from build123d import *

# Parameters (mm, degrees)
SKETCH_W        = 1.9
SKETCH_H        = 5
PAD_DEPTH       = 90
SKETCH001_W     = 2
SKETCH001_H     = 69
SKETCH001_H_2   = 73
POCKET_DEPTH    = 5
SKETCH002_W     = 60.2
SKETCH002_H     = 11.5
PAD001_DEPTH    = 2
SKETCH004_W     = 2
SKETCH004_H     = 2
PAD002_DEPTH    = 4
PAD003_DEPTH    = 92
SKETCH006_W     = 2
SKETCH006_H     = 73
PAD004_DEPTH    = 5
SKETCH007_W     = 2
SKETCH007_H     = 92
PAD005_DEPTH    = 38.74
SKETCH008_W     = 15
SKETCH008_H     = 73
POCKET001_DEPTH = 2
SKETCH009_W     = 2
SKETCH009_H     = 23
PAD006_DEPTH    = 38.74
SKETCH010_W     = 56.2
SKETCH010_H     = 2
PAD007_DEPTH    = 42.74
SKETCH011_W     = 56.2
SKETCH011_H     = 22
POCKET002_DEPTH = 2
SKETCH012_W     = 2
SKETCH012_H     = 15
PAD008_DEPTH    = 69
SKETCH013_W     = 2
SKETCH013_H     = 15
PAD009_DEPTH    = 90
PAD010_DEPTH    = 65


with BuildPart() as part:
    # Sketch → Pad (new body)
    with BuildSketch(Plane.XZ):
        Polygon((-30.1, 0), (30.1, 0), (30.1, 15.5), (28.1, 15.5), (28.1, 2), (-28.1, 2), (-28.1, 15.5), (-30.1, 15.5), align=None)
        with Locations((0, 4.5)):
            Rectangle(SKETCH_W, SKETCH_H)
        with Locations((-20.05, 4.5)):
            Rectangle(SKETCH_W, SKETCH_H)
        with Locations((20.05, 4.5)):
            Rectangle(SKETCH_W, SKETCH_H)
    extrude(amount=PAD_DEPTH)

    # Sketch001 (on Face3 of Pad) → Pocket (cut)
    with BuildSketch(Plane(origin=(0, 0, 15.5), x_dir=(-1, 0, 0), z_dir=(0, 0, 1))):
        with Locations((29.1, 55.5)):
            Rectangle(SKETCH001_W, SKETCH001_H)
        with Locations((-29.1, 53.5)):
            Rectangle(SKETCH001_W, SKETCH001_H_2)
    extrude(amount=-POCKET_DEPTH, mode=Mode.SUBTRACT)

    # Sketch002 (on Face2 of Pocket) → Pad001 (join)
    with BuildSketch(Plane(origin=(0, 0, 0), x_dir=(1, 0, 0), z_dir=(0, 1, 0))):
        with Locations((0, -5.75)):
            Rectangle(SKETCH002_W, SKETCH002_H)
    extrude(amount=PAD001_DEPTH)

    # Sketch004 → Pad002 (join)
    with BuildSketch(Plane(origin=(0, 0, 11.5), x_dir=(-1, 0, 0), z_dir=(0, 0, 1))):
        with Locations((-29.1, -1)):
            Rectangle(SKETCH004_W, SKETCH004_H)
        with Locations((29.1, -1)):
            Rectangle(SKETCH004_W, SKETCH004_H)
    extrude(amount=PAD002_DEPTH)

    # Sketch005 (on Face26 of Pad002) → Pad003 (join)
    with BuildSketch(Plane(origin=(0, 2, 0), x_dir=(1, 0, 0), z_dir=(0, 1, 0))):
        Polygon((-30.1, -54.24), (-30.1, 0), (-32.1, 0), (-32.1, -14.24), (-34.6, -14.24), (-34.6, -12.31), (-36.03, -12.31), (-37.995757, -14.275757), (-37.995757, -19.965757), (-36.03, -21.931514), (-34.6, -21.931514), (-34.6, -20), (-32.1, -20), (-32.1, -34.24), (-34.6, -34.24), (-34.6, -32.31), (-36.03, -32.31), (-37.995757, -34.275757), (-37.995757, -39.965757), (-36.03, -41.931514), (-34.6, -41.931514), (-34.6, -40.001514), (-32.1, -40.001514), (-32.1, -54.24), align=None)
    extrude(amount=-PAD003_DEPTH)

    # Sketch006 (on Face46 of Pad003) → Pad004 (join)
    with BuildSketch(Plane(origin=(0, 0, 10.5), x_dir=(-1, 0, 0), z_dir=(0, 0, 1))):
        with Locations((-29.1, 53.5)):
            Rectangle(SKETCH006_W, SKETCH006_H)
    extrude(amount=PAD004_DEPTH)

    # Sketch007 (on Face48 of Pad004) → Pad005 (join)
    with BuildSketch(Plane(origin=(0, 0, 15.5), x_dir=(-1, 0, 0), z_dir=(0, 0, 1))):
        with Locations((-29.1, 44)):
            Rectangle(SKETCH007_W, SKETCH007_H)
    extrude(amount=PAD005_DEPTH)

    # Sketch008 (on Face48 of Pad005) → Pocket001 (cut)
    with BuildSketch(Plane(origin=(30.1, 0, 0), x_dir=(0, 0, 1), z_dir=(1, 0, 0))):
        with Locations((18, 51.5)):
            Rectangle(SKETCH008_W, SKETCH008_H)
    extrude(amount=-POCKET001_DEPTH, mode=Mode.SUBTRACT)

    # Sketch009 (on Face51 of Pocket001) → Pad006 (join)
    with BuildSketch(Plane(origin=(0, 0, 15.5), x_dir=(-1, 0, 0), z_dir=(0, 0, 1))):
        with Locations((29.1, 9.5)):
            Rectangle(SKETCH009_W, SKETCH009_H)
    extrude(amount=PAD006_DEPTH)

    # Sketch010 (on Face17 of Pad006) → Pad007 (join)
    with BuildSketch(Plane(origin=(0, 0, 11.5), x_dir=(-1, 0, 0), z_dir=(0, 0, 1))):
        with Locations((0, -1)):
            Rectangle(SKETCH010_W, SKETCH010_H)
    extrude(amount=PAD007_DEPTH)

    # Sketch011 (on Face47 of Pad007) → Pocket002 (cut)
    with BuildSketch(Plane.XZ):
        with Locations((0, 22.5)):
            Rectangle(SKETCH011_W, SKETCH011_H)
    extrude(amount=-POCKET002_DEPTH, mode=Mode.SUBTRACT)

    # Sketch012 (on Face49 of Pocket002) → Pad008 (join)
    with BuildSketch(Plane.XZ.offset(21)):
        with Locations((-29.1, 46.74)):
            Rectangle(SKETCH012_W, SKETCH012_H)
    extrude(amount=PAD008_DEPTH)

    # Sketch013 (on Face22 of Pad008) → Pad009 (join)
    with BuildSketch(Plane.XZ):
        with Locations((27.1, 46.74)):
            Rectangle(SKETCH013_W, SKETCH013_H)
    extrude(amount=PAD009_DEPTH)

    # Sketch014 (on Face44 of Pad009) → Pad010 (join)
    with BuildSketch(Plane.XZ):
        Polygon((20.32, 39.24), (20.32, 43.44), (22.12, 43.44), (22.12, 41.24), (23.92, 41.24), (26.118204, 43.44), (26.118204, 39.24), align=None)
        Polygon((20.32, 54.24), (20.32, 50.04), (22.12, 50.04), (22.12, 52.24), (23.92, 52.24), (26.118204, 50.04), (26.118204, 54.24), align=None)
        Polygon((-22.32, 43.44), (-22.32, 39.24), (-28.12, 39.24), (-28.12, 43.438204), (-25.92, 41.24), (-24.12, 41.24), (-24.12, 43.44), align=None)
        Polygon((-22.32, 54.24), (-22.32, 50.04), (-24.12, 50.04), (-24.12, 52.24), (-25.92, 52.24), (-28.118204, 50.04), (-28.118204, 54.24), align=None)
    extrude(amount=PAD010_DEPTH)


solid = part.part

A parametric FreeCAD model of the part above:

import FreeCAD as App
import Part
import Sketcher
from FreeCAD import Vector

doc = App.newDocument("Part")
params = doc.addObject("Spreadsheet::Sheet", "Params")
for row, (alias, value) in enumerate([
    ("sketch1_width", "2 mm"),
    ("sketch1_height", "5 mm"),
    ("sketch1_width2", "60.2 mm"),
    ("sketch1_width3", "7.1 mm"),
    ("sketch1_width4", "1.9 mm"),
    ("pad1_length", "90 mm"),
    ("sketch2_width", "2 mm"),
    ("sketch2_height", "69 mm"),
    ("sketch2_height2", "73 mm"),
    ("pocket1_length", "5 mm"),
    ("sketch3_width", "60.2 mm"),
    ("sketch3_height", "11.5 mm"),
    ("pad2_length", "2 mm"),
    ("sketch4_width", "2 mm"),
    ("pad3_length", "4 mm"),
    ("sketch5_width", "2 mm"),
    ("sketch5_width2", "2.5 mm"),
    ("sketch5_width3", "1.43 mm"),
    ("sketch5_height", "54.24 mm"),
    ("sketch5_height2", "14.24 mm"),
    ("pad4_length", "92 mm"),
    ("sketch6_width", "2 mm"),
    ("sketch6_height", "73 mm"),
    ("pad5_length", "5 mm"),
    ("sketch7_width", "2 mm"),
    ("sketch7_height", "92 mm"),
    ("pad6_length", "38.74 mm"),
    ("sketch8_width", "73 mm"),
    ("sketch8_height", "15 mm"),
    ("pocket2_length", "2 mm"),
    ("sketch9_width", "2 mm"),
    ("sketch9_height", "23 mm"),
    ("pad7_length", "38.74 mm"),
    ("sketch10_height", "2 mm"),
    ("sketch10_width", "56.2 mm"),
    ("pad8_length", "42.74 mm"),
    ("sketch11_height", "22 mm"),
    ("sketch11_width", "56.2 mm"),
    ("pocket3_length", "2 mm"),
    ("sketch12_width", "2 mm"),
    ("sketch12_height", "15 mm"),
    ("pad9_length", "69 mm"),
    ("sketch13_width", "2 mm"),
    ("sketch13_height", "15 mm"),
    ("pad10_length", "90 mm"),
    ("sketch14_width", "1.8 mm"),
    ("sketch14_width2", "5.8 mm"),
    ("sketch14_height", "4.2 mm"),
    ("sketch14_length", "3.11 mm"),
    ("pad11_length", "65 mm"),
], start=1):
    params.set(f"A{row}", alias)
    params.set(f"B{row}", "=" + value)
    params.setAlias(f"B{row}", alias)

body = doc.addObject("PartDesign::Body", "Body")

# Sketch on XZ plane
sketch1 = body.newObject("Sketcher::SketchObject", "Sketch")
sketch1.AttachmentSupport = (doc.getObject("XZ_Plane"), [""])
sketch1.MapMode = "FlatFace"
sketch1.addGeometry([
    Part.LineSegment(Vector(-30.1, 0, 0), Vector(30.1, 0, 0)),  # 0
    Part.LineSegment(Vector(30.1, 0, 0), Vector(30.1, 15.5, 0)),  # 1
    Part.LineSegment(Vector(30.1, 15.5, 0), Vector(28.1, 15.5, 0)),  # 2
    Part.LineSegment(Vector(28.1, 15.5, 0), Vector(28.1, 2, 0)),  # 3
    Part.LineSegment(Vector(28.1, 2, 0), Vector(21, 2, 0)),  # 4
    Part.LineSegment(Vector(21, 2, 0), Vector(21, 7, 0)),  # 5
    Part.LineSegment(Vector(21, 7, 0), Vector(19.1, 7, 0)),  # 6
    Part.LineSegment(Vector(19.1, 7, 0), Vector(19.1, 2, 0)),  # 7
    Part.LineSegment(Vector(19.1, 2, 0), Vector(0.95, 2, 0)),  # 8
    Part.LineSegment(Vector(0.95, 2, 0), Vector(0.95, 7, 0)),  # 9
    Part.LineSegment(Vector(0.95, 7, 0), Vector(-0.95, 7, 0)),  # 10
    Part.LineSegment(Vector(-0.95, 7, 0), Vector(-0.95, 2, 0)),  # 11
    Part.LineSegment(Vector(-0.95, 2, 0), Vector(-19.1, 2, 0)),  # 12
    Part.LineSegment(Vector(-19.1, 2, 0), Vector(-19.1, 7, 0)),  # 13
    Part.LineSegment(Vector(-19.1, 7, 0), Vector(-21, 7, 0)),  # 14
    Part.LineSegment(Vector(-21, 7, 0), Vector(-21, 2, 0)),  # 15
    Part.LineSegment(Vector(-21, 2, 0), Vector(-28.1, 2, 0)),  # 16
    Part.LineSegment(Vector(-28.1, 2, 0), Vector(-28.1, 15.5, 0)),  # 17
    Part.LineSegment(Vector(-28.1, 15.5, 0), Vector(-30.1, 15.5, 0)),  # 18
    Part.LineSegment(Vector(-30.1, 15.5, 0), Vector(-30.1, 0, 0)),  # 19
], False)
sketch1.addConstraint([
    Sketcher.Constraint("Coincident", 0, 2, 1, 1),
    Sketcher.Constraint("Coincident", 1, 2, 2, 1),
    Sketcher.Constraint("Coincident", 2, 2, 3, 1),
    Sketcher.Constraint("Coincident", 3, 2, 4, 1),
    Sketcher.Constraint("Coincident", 4, 2, 5, 1),
    Sketcher.Constraint("Coincident", 5, 2, 6, 1),
    Sketcher.Constraint("Coincident", 6, 2, 7, 1),
    Sketcher.Constraint("Coincident", 7, 2, 8, 1),
    Sketcher.Constraint("Coincident", 8, 2, 9, 1),
    Sketcher.Constraint("Coincident", 9, 2, 10, 1),
    Sketcher.Constraint("Coincident", 10, 2, 11, 1),
    Sketcher.Constraint("Coincident", 11, 2, 12, 1),
    Sketcher.Constraint("Coincident", 12, 2, 13, 1),
    Sketcher.Constraint("Coincident", 13, 2, 14, 1),
    Sketcher.Constraint("Coincident", 14, 2, 15, 1),
    Sketcher.Constraint("Coincident", 15, 2, 16, 1),
    Sketcher.Constraint("Coincident", 16, 2, 17, 1),
    Sketcher.Constraint("Coincident", 17, 2, 18, 1),
    Sketcher.Constraint("Coincident", 18, 2, 19, 1),
    Sketcher.Constraint("Coincident", 19, 2, 0, 1),
    Sketcher.Constraint("Horizontal", 0),
    Sketcher.Constraint("Vertical", 1),
    Sketcher.Constraint("Horizontal", 2),
    Sketcher.Constraint("Vertical", 3),
    Sketcher.Constraint("Horizontal", 4),
    Sketcher.Constraint("Vertical", 5),
    Sketcher.Constraint("Horizontal", 6),
    Sketcher.Constraint("Vertical", 7),
    Sketcher.Constraint("Horizontal", 8),
    Sketcher.Constraint("Vertical", 9),
    Sketcher.Constraint("Horizontal", 10),
    Sketcher.Constraint("Vertical", 11),
    Sketcher.Constraint("Horizontal", 12),
    Sketcher.Constraint("Vertical", 13),
    Sketcher.Constraint("Horizontal", 14),
    Sketcher.Constraint("Vertical", 15),
    Sketcher.Constraint("Horizontal", 16),
    Sketcher.Constraint("Vertical", 17),
    Sketcher.Constraint("Horizontal", 18),
    Sketcher.Constraint("Vertical", 19),
    Sketcher.Constraint("Symmetric", 0, 2, 19, 2, -1, 1),
    Sketcher.Constraint("Symmetric", 8, 2, 11, 2, -2),
    Sketcher.Constraint("Symmetric", 6, 2, 13, 2, -2),
    Sketcher.Constraint("Symmetric", 4, 2, 15, 2, -2),
    Sketcher.Constraint("Symmetric", 2, 2, 17, 2, -2),
    Sketcher.Constraint("Horizontal", 4, 2, 7, 2),
    Sketcher.Constraint("Horizontal", 6, 2, 9, 2),
    Sketcher.Constraint("Equal", 6, 10),
    Sketcher.Constraint("DistanceX", 2, 2, 2, 1, 2.0),
    Sketcher.Constraint("DistanceY", 5, 1, 5, 2, 5.0),
    Sketcher.Constraint("DistanceX", 0, 1, 0, 2, 60.2),
    Sketcher.Constraint("DistanceX", 4, 2, 4, 1, 7.1),
    Sketcher.Constraint("DistanceX", 6, 2, 6, 1, 1.9),
    Sketcher.Constraint("DistanceY", 1, 1, 1, 2, 15.5),
    Sketcher.Constraint("DistanceY", 3, 2, 3, 1, 13.5),
])
sketch1.setExpression("Constraints[48]", "Params.sketch1_width")
sketch1.setExpression("Constraints[49]", "Params.sketch1_height")
sketch1.setExpression("Constraints[50]", "Params.sketch1_width2")
sketch1.setExpression("Constraints[51]", "Params.sketch1_width3")
sketch1.setExpression("Constraints[52]", "Params.sketch1_width4")
pad1 = body.newObject("PartDesign::Pad", "Pad")
pad1.Profile = sketch1
pad1.setExpression("Length", "Params.pad1_length")

# Sketch on XY plane
sketch2 = body.newObject("Sketcher::SketchObject", "Sketch001")
sketch2.AttachmentSupport = (doc.getObject("XY_Plane"), [""])
sketch2.MapMode = "FlatFace"
sketch2.AttachmentOffset = App.Placement(Vector(0, 0, 15.5), App.Rotation())
sketch2.addGeometry([
    Part.LineSegment(Vector(-28.1, -90, 0), Vector(-28.1, -21, 0)),  # 0
    Part.LineSegment(Vector(-28.1, -21, 0), Vector(-30.1, -21, 0)),  # 1
    Part.LineSegment(Vector(-30.1, -21, 0), Vector(-30.1, -90, 0)),  # 2
    Part.LineSegment(Vector(-30.1, -90, 0), Vector(-28.1, -90, 0)),  # 3
    Part.LineSegment(Vector(30.1, -90, 0), Vector(30.1, -17, 0)),  # 4
    Part.LineSegment(Vector(30.1, -17, 0), Vector(28.1, -17, 0)),  # 5
    Part.LineSegment(Vector(28.1, -17, 0), Vector(28.1, -90, 0)),  # 6
    Part.LineSegment(Vector(28.1, -90, 0), Vector(30.1, -90, 0)),  # 7
], False)
sketch2.addConstraint([
    Sketcher.Constraint("Coincident", 0, 2, 1, 1),
    Sketcher.Constraint("Coincident", 1, 2, 2, 1),
    Sketcher.Constraint("Coincident", 2, 2, 3, 1),
    Sketcher.Constraint("Coincident", 3, 2, 0, 1),
    Sketcher.Constraint("Coincident", 4, 2, 5, 1),
    Sketcher.Constraint("Coincident", 5, 2, 6, 1),
    Sketcher.Constraint("Coincident", 6, 2, 7, 1),
    Sketcher.Constraint("Coincident", 7, 2, 4, 1),
    Sketcher.Constraint("Vertical", 0),
    Sketcher.Constraint("Horizontal", 1),
    Sketcher.Constraint("Vertical", 2),
    Sketcher.Constraint("Horizontal", 3),
    Sketcher.Constraint("Vertical", 4),
    Sketcher.Constraint("Horizontal", 5),
    Sketcher.Constraint("Vertical", 6),
    Sketcher.Constraint("Horizontal", 7),
    Sketcher.Constraint("Symmetric", 3, 2, 6, 2, -2),
    Sketcher.Constraint("Equal", 3, 5),
    Sketcher.Constraint("DistanceX", 1, 2, 1, 1, 2.0),
    Sketcher.Constraint("DistanceY", 0, 1, 0, 2, 69.0),
    Sketcher.Constraint("DistanceY", 4, 1, 4, 2, 73.0),
    Sketcher.Constraint("DistanceY", 0, 2, -1, 1, 21.0),
    Sketcher.Constraint("DistanceX", 0, 2, -1, 1, 28.1),
])
sketch2.setExpression("Constraints[18]", "Params.sketch2_width")
sketch2.setExpression("Constraints[19]", "Params.sketch2_height")
sketch2.setExpression("Constraints[20]", "Params.sketch2_height2")
pocket1 = body.newObject("PartDesign::Pocket", "Pocket")
pocket1.Profile = sketch2
pocket1.setExpression("Length", "Params.pocket1_length")

# Sketch on XZ plane
sketch3 = body.newObject("Sketcher::SketchObject", "Sketch002")
sketch3.AttachmentSupport = (doc.getObject("XZ_Plane"), [""])
sketch3.MapMode = "FlatFace"
sketch3.addGeometry([
    Part.LineSegment(Vector(-30.1, 0, 0), Vector(-30.1, 11.5, 0)),
    Part.LineSegment(Vector(-30.1, 11.5, 0), Vector(30.1, 11.5, 0)),
    Part.LineSegment(Vector(30.1, 11.5, 0), Vector(30.1, 0, 0)),
    Part.LineSegment(Vector(30.1, 0, 0), Vector(-30.1, 0, 0)),
], False)
sketch3.addConstraint([
    Sketcher.Constraint("Coincident", 0, 2, 1, 1),
    Sketcher.Constraint("Coincident", 1, 2, 2, 1),
    Sketcher.Constraint("Coincident", 2, 2, 3, 1),
    Sketcher.Constraint("Coincident", 3, 2, 0, 1),
    Sketcher.Constraint("Vertical", 0),
    Sketcher.Constraint("Horizontal", 1),
    Sketcher.Constraint("Vertical", 2),
    Sketcher.Constraint("Horizontal", 3),
    Sketcher.Constraint("Symmetric", 2, 2, 3, 2, -1, 1),
    Sketcher.Constraint("DistanceX", 1, 1, 1, 2, 60.2),
    Sketcher.Constraint("DistanceY", 0, 1, 0, 2, 11.5),
])
sketch3.setExpression("Constraints[9]", "Params.sketch3_width")
sketch3.setExpression("Constraints[10]", "Params.sketch3_height")
pad2 = body.newObject("PartDesign::Pad", "Pad001")
pad2.Profile = sketch3
pad2.setExpression("Length", "Params.pad2_length")
pad2.Reversed = True

# Sketch on XY plane
sketch4 = body.newObject("Sketcher::SketchObject", "Sketch003")
sketch4.AttachmentSupport = (doc.getObject("XY_Plane"), [""])
sketch4.MapMode = "FlatFace"
sketch4.AttachmentOffset = App.Placement(Vector(0, 0, 11.5), App.Rotation())
sketch4.addGeometry([
    Part.LineSegment(Vector(30.1, 0, 0), Vector(30.1, 2, 0)),  # 0
    Part.LineSegment(Vector(30.1, 2, 0), Vector(28.1, 2, 0)),  # 1
    Part.LineSegment(Vector(28.1, 2, 0), Vector(28.1, 0, 0)),  # 2
    Part.LineSegment(Vector(28.1, 0, 0), Vector(30.1, 0, 0)),  # 3
    Part.LineSegment(Vector(-28.1, 0, 0), Vector(-28.1, 2, 0)),  # 4
    Part.LineSegment(Vector(-28.1, 2, 0), Vector(-30.1, 2, 0)),  # 5
    Part.LineSegment(Vector(-30.1, 2, 0), Vector(-30.1, 0, 0)),  # 6
    Part.LineSegment(Vector(-30.1, 0, 0), Vector(-28.1, 0, 0)),  # 7
], False)
sketch4.addConstraint([
    Sketcher.Constraint("Coincident", 0, 2, 1, 1),
    Sketcher.Constraint("Coincident", 1, 2, 2, 1),
    Sketcher.Constraint("Coincident", 2, 2, 3, 1),
    Sketcher.Constraint("Coincident", 3, 2, 0, 1),
    Sketcher.Constraint("Coincident", 4, 2, 5, 1),
    Sketcher.Constraint("Coincident", 5, 2, 6, 1),
    Sketcher.Constraint("Coincident", 6, 2, 7, 1),
    Sketcher.Constraint("Coincident", 7, 2, 4, 1),
    Sketcher.Constraint("Vertical", 0),
    Sketcher.Constraint("Horizontal", 1),
    Sketcher.Constraint("Vertical", 2),
    Sketcher.Constraint("Horizontal", 3),
    Sketcher.Constraint("Vertical", 4),
    Sketcher.Constraint("Horizontal", 5),
    Sketcher.Constraint("Vertical", 6),
    Sketcher.Constraint("Horizontal", 7),
    Sketcher.Constraint("Symmetric", 3, 2, 6, 2, -1, 1),
    Sketcher.Constraint("Symmetric", 1, 2, 4, 2, -2),
    Sketcher.Constraint("PointOnObject", 2, 2, -1),
    Sketcher.Constraint("Equal", 7, 0),
    Sketcher.Constraint("DistanceX", 1, 2, 1, 1, 2.0),
    Sketcher.Constraint("DistanceX", -1, 1, 0, 2, 30.1),
])
sketch4.setExpression("Constraints[20]", "Params.sketch4_width")
pad3 = body.newObject("PartDesign::Pad", "Pad002")
pad3.Profile = sketch4
pad3.setExpression("Length", "Params.pad3_length")

# Sketch on XZ plane
sketch5 = body.newObject("Sketcher::SketchObject", "Sketch004")
sketch5.AttachmentSupport = (doc.getObject("XZ_Plane"), [""])
sketch5.MapMode = "FlatFace"
sketch5.AttachmentOffset = App.Placement(Vector(0, 0, -2), App.Rotation())
sketch5.addGeometry([
    Part.LineSegment(Vector(-30.1, 54.24, 0), Vector(-30.1, 0, 0)),  # 0
    Part.LineSegment(Vector(-30.1, 0, 0), Vector(-32.1, 0, 0)),  # 1
    Part.LineSegment(Vector(-32.1, 0, 0), Vector(-32.1, 14.24, 0)),  # 2
    Part.LineSegment(Vector(-32.1, 14.24, 0), Vector(-34.6, 14.24, 0)),  # 3
    Part.LineSegment(Vector(-34.6, 14.24, 0), Vector(-34.6, 12.31, 0)),  # 4
    Part.LineSegment(Vector(-34.6, 12.31, 0), Vector(-36.03, 12.31, 0)),  # 5
    Part.LineSegment(Vector(-36.03, 12.31, 0), Vector(-37.995757, 14.275757, 0)),  # 6
    Part.LineSegment(Vector(-37.995757, 14.275757, 0), Vector(-37.995757, 19.965757, 0)),  # 7
    Part.LineSegment(Vector(-37.995757, 19.965757, 0), Vector(-36.03, 21.931514, 0)),  # 8
    Part.LineSegment(Vector(-36.03, 21.931514, 0), Vector(-34.6, 21.931514, 0)),  # 9
    Part.LineSegment(Vector(-34.6, 21.931514, 0), Vector(-34.6, 20, 0)),  # 10
    Part.LineSegment(Vector(-34.6, 20, 0), Vector(-32.1, 20, 0)),  # 11
    Part.LineSegment(Vector(-32.1, 20, 0), Vector(-32.1, 34.24, 0)),  # 12
    Part.LineSegment(Vector(-32.1, 34.24, 0), Vector(-34.6, 34.24, 0)),  # 13
    Part.LineSegment(Vector(-34.6, 34.24, 0), Vector(-34.6, 32.31, 0)),  # 14
    Part.LineSegment(Vector(-34.6, 32.31, 0), Vector(-36.03, 32.31, 0)),  # 15
    Part.LineSegment(Vector(-36.03, 32.31, 0), Vector(-37.995757, 34.275757, 0)),  # 16
    Part.LineSegment(Vector(-37.995757, 34.275757, 0), Vector(-37.995757, 39.965757, 0)),  # 17
    Part.LineSegment(Vector(-37.995757, 39.965757, 0), Vector(-36.03, 41.931514, 0)),  # 18
    Part.LineSegment(Vector(-36.03, 41.931514, 0), Vector(-34.6, 41.931514, 0)),  # 19
    Part.LineSegment(Vector(-34.6, 41.931514, 0), Vector(-34.6, 40.001514, 0)),  # 20
    Part.LineSegment(Vector(-34.6, 40.001514, 0), Vector(-32.1, 40.001514, 0)),  # 21
    Part.LineSegment(Vector(-32.1, 40.001514, 0), Vector(-32.1, 54.24, 0)),  # 22
    Part.LineSegment(Vector(-32.1, 54.24, 0), Vector(-30.1, 54.24, 0)),  # 23
], False)
sketch5.addConstraint([
    Sketcher.Constraint("Coincident", 0, 2, 1, 1),
    Sketcher.Constraint("Coincident", 1, 2, 2, 1),
    Sketcher.Constraint("Coincident", 2, 2, 3, 1),
    Sketcher.Constraint("Coincident", 3, 2, 4, 1),
    Sketcher.Constraint("Coincident", 4, 2, 5, 1),
    Sketcher.Constraint("Coincident", 5, 2, 6, 1),
    Sketcher.Constraint("Coincident", 6, 2, 7, 1),
    Sketcher.Constraint("Coincident", 7, 2, 8, 1),
    Sketcher.Constraint("Coincident", 8, 2, 9, 1),
    Sketcher.Constraint("Coincident", 9, 2, 10, 1),
    Sketcher.Constraint("Coincident", 10, 2, 11, 1),
    Sketcher.Constraint("Coincident", 11, 2, 12, 1),
    Sketcher.Constraint("Coincident", 12, 2, 13, 1),
    Sketcher.Constraint("Coincident", 13, 2, 14, 1),
    Sketcher.Constraint("Coincident", 14, 2, 15, 1),
    Sketcher.Constraint("Coincident", 15, 2, 16, 1),
    Sketcher.Constraint("Coincident", 16, 2, 17, 1),
    Sketcher.Constraint("Coincident", 17, 2, 18, 1),
    Sketcher.Constraint("Coincident", 18, 2, 19, 1),
    Sketcher.Constraint("Coincident", 19, 2, 20, 1),
    Sketcher.Constraint("Coincident", 20, 2, 21, 1),
    Sketcher.Constraint("Coincident", 21, 2, 22, 1),
    Sketcher.Constraint("Coincident", 22, 2, 23, 1),
    Sketcher.Constraint("Coincident", 23, 2, 0, 1),
    Sketcher.Constraint("Vertical", 0),
    Sketcher.Constraint("Horizontal", 1),
    Sketcher.Constraint("Vertical", 2),
    Sketcher.Constraint("Horizontal", 3),
    Sketcher.Constraint("Vertical", 4),
    Sketcher.Constraint("Horizontal", 5),
    Sketcher.Constraint("Vertical", 7),
    Sketcher.Constraint("Horizontal", 9),
    Sketcher.Constraint("Vertical", 10),
    Sketcher.Constraint("Horizontal", 11),
    Sketcher.Constraint("Vertical", 12),
    Sketcher.Constraint("Horizontal", 13),
    Sketcher.Constraint("Vertical", 14),
    Sketcher.Constraint("Horizontal", 15),
    Sketcher.Constraint("Vertical", 17),
    Sketcher.Constraint("Horizontal", 19),
    Sketcher.Constraint("Vertical", 20),
    Sketcher.Constraint("Horizontal", 21),
    Sketcher.Constraint("Vertical", 22),
    Sketcher.Constraint("Horizontal", 23),
    Sketcher.Constraint("PointOnObject", 0, 2, -1),
    Sketcher.Constraint("Perpendicular", 6, 8),
    Sketcher.Constraint("Perpendicular", 8, 16),
    Sketcher.Constraint("Perpendicular", 16, 18),
    Sketcher.Constraint("Vertical", 5, 2, 8, 2),
    Sketcher.Constraint("Vertical", 4, 2, 9, 2),
    Sketcher.Constraint("Vertical", 2, 2, 11, 2),
    Sketcher.Constraint("Vertical", 10, 2, 13, 2),
    Sketcher.Constraint("Vertical", 8, 2, 15, 2),
    Sketcher.Constraint("Vertical", 7, 2, 16, 2),
    Sketcher.Constraint("Vertical", 15, 2, 18, 2),
    Sketcher.Constraint("Vertical", 14, 2, 19, 2),
    Sketcher.Constraint("Vertical", 12, 2, 21, 2),
    Sketcher.Constraint("Equal", 2, 12),
    Sketcher.Constraint("Equal", 4, 14),
    Sketcher.Constraint("Equal", 7, 17),
    Sketcher.Constraint("Equal", 14, 20),
    Sketcher.Constraint("Equal", 6, 8),
    Sketcher.Constraint("DistanceX", 1, 2, 1, 1, 2.0),
    Sketcher.Constraint("DistanceX", 3, 2, 3, 1, 2.5),
    Sketcher.Constraint("DistanceY", -1, 1, 10, 2, 20.0),
    Sketcher.Constraint("DistanceX", 5, 2, 5, 1, 1.43),
    Sketcher.Constraint("DistanceY", 0, 2, 0, 1, 54.24),
    Sketcher.Constraint("DistanceY", 2, 1, 2, 2, 14.24),
    Sketcher.Constraint("DistanceY", 4, 2, 4, 1, 1.93),
    Sketcher.Constraint("DistanceY", 7, 1, 7, 2, 5.69),
    Sketcher.Constraint("DistanceX", 0, 2, -1, 1, 30.1),
    Sketcher.Constraint("Distance", 6, 2.78),
])
sketch5.setExpression("Constraints[62]", "Params.sketch5_width")
sketch5.setExpression("Constraints[63]", "Params.sketch5_width2")
sketch5.setExpression("Constraints[65]", "Params.sketch5_width3")
sketch5.setExpression("Constraints[66]", "Params.sketch5_height")
sketch5.setExpression("Constraints[67]", "Params.sketch5_height2")
pad4 = body.newObject("PartDesign::Pad", "Pad003")
pad4.Profile = sketch5
pad4.setExpression("Length", "Params.pad4_length")

# Sketch on XY plane
sketch6 = body.newObject("Sketcher::SketchObject", "Sketch005")
sketch6.AttachmentSupport = (doc.getObject("XY_Plane"), [""])
sketch6.MapMode = "FlatFace"
sketch6.AttachmentOffset = App.Placement(Vector(0, 0, 10.5), App.Rotation())
sketch6.addGeometry([
    Part.LineSegment(Vector(30.1, -90, 0), Vector(30.1, -17, 0)),
    Part.LineSegment(Vector(30.1, -17, 0), Vector(28.1, -17, 0)),
    Part.LineSegment(Vector(28.1, -17, 0), Vector(28.1, -90, 0)),
    Part.LineSegment(Vector(28.1, -90, 0), Vector(30.1, -90, 0)),
], False)
sketch6.addConstraint([
    Sketcher.Constraint("Coincident", 0, 2, 1, 1),
    Sketcher.Constraint("Coincident", 1, 2, 2, 1),
    Sketcher.Constraint("Coincident", 2, 2, 3, 1),
    Sketcher.Constraint("Coincident", 3, 2, 0, 1),
    Sketcher.Constraint("Vertical", 0),
    Sketcher.Constraint("Horizontal", 1),
    Sketcher.Constraint("Vertical", 2),
    Sketcher.Constraint("Horizontal", 3),
    Sketcher.Constraint("DistanceX", 1, 2, 1, 1, 2.0),
    Sketcher.Constraint("DistanceY", 0, 1, 0, 2, 73.0),
    Sketcher.Constraint("DistanceY", 0, 2, -1, 1, 17.0),
    Sketcher.Constraint("DistanceX", -1, 1, 0, 2, 30.1),
])
sketch6.setExpression("Constraints[8]", "Params.sketch6_width")
sketch6.setExpression("Constraints[9]", "Params.sketch6_height")
pad5 = body.newObject("PartDesign::Pad", "Pad004")
pad5.Profile = sketch6
pad5.setExpression("Length", "Params.pad5_length")

# Sketch on XY plane
sketch7 = body.newObject("Sketcher::SketchObject", "Sketch006")
sketch7.AttachmentSupport = (doc.getObject("XY_Plane"), [""])
sketch7.MapMode = "FlatFace"
sketch7.AttachmentOffset = App.Placement(Vector(0, 0, 15.5), App.Rotation())
sketch7.addGeometry([
    Part.LineSegment(Vector(30.1, -90, 0), Vector(30.1, 2, 0)),
    Part.LineSegment(Vector(30.1, 2, 0), Vector(28.1, 2, 0)),
    Part.LineSegment(Vector(28.1, 2, 0), Vector(28.1, -90, 0)),
    Part.LineSegment(Vector(28.1, -90, 0), Vector(30.1, -90, 0)),
], False)
sketch7.addConstraint([
    Sketcher.Constraint("Coincident", 0, 2, 1, 1),
    Sketcher.Constraint("Coincident", 1, 2, 2, 1),
    Sketcher.Constraint("Coincident", 2, 2, 3, 1),
    Sketcher.Constraint("Coincident", 3, 2, 0, 1),
    Sketcher.Constraint("Vertical", 0),
    Sketcher.Constraint("Horizontal", 1),
    Sketcher.Constraint("Vertical", 2),
    Sketcher.Constraint("Horizontal", 3),
    Sketcher.Constraint("DistanceX", 1, 2, 1, 1, 2.0),
    Sketcher.Constraint("DistanceY", 0, 1, 0, 2, 92.0),
    Sketcher.Constraint("DistanceY", -1, 1, 0, 2, 2.0),
    Sketcher.Constraint("DistanceX", -1, 1, 0, 2, 30.1),
])
sketch7.setExpression("Constraints[8]", "Params.sketch7_width")
sketch7.setExpression("Constraints[9]", "Params.sketch7_height")
pad6 = body.newObject("PartDesign::Pad", "Pad005")
pad6.Profile = sketch7
pad6.setExpression("Length", "Params.pad6_length")

# Sketch on YZ plane
sketch8 = body.newObject("Sketcher::SketchObject", "Sketch007")
sketch8.AttachmentSupport = (doc.getObject("YZ_Plane"), [""])
sketch8.MapMode = "FlatFace"
sketch8.AttachmentOffset = App.Placement(Vector(0, 0, 30.1), App.Rotation())
sketch8.addGeometry([
    Part.LineSegment(Vector(-88, 10.5, 0), Vector(-15, 10.5, 0)),
    Part.LineSegment(Vector(-15, 10.5, 0), Vector(-15, 25.5, 0)),
    Part.LineSegment(Vector(-15, 25.5, 0), Vector(-88, 25.5, 0)),
    Part.LineSegment(Vector(-88, 25.5, 0), Vector(-88, 10.5, 0)),
], False)
sketch8.addConstraint([
    Sketcher.Constraint("Coincident", 0, 2, 1, 1),
    Sketcher.Constraint("Coincident", 1, 2, 2, 1),
    Sketcher.Constraint("Coincident", 2, 2, 3, 1),
    Sketcher.Constraint("Coincident", 3, 2, 0, 1),
    Sketcher.Constraint("Horizontal", 0),
    Sketcher.Constraint("Vertical", 1),
    Sketcher.Constraint("Horizontal", 2),
    Sketcher.Constraint("Vertical", 3),
    Sketcher.Constraint("DistanceX", 0, 1, 0, 2, 73.0),
    Sketcher.Constraint("DistanceY", 1, 1, 1, 2, 15.0),
    Sketcher.Constraint("DistanceX", 0, 2, -1, 1, 15.0),
    Sketcher.Constraint("DistanceY", -1, 1, 0, 2, 10.5),
])
sketch8.setExpression("Constraints[8]", "Params.sketch8_width")
sketch8.setExpression("Constraints[9]", "Params.sketch8_height")
pocket2 = body.newObject("PartDesign::Pocket", "Pocket001")
pocket2.Profile = sketch8
pocket2.setExpression("Length", "Params.pocket2_length")

# Sketch on XY plane
sketch9 = body.newObject("Sketcher::SketchObject", "Sketch008")
sketch9.AttachmentSupport = (doc.getObject("XY_Plane"), [""])
sketch9.MapMode = "FlatFace"
sketch9.AttachmentOffset = App.Placement(Vector(0, 0, 15.5), App.Rotation())
sketch9.addGeometry([
    Part.LineSegment(Vector(-28.1, -21, 0), Vector(-28.1, 2, 0)),
    Part.LineSegment(Vector(-28.1, 2, 0), Vector(-30.1, 2, 0)),
    Part.LineSegment(Vector(-30.1, 2, 0), Vector(-30.1, -21, 0)),
    Part.LineSegment(Vector(-30.1, -21, 0), Vector(-28.1, -21, 0)),
], False)
sketch9.addConstraint([
    Sketcher.Constraint("Coincident", 0, 2, 1, 1),
    Sketcher.Constraint("Coincident", 1, 2, 2, 1),
    Sketcher.Constraint("Coincident", 2, 2, 3, 1),
    Sketcher.Constraint("Coincident", 3, 2, 0, 1),
    Sketcher.Constraint("Vertical", 0),
    Sketcher.Constraint("Horizontal", 1),
    Sketcher.Constraint("Vertical", 2),
    Sketcher.Constraint("Horizontal", 3),
    Sketcher.Constraint("DistanceX", 1, 2, 1, 1, 2.0),
    Sketcher.Constraint("DistanceY", 0, 1, 0, 2, 23.0),
    Sketcher.Constraint("DistanceY", -1, 1, 0, 2, 2.0),
    Sketcher.Constraint("DistanceX", 0, 2, -1, 1, 28.1),
])
sketch9.setExpression("Constraints[8]", "Params.sketch9_width")
sketch9.setExpression("Constraints[9]", "Params.sketch9_height")
pad7 = body.newObject("PartDesign::Pad", "Pad006")
pad7.Profile = sketch9
pad7.setExpression("Length", "Params.pad7_length")

# Sketch on XY plane
sketch10 = body.newObject("Sketcher::SketchObject", "Sketch009")
sketch10.AttachmentSupport = (doc.getObject("XY_Plane"), [""])
sketch10.MapMode = "FlatFace"
sketch10.AttachmentOffset = App.Placement(Vector(0, 0, 11.5), App.Rotation())
sketch10.addGeometry([
    Part.LineSegment(Vector(28.1, 0, 0), Vector(28.1, 2, 0)),
    Part.LineSegment(Vector(28.1, 2, 0), Vector(-28.1, 2, 0)),
    Part.LineSegment(Vector(-28.1, 2, 0), Vector(-28.1, 0, 0)),
    Part.LineSegment(Vector(-28.1, 0, 0), Vector(28.1, 0, 0)),
], False)
sketch10.addConstraint([
    Sketcher.Constraint("Coincident", 0, 2, 1, 1),
    Sketcher.Constraint("Coincident", 1, 2, 2, 1),
    Sketcher.Constraint("Coincident", 2, 2, 3, 1),
    Sketcher.Constraint("Coincident", 3, 2, 0, 1),
    Sketcher.Constraint("Vertical", 0),
    Sketcher.Constraint("Horizontal", 1),
    Sketcher.Constraint("Vertical", 2),
    Sketcher.Constraint("Horizontal", 3),
    Sketcher.Constraint("Symmetric", 2, 2, 3, 2, -1, 1),
    Sketcher.Constraint("DistanceY", 0, 1, 0, 2, 2.0),
    Sketcher.Constraint("DistanceX", 1, 2, 1, 1, 56.2),
])
sketch10.setExpression("Constraints[9]", "Params.sketch10_height")
sketch10.setExpression("Constraints[10]", "Params.sketch10_width")
pad8 = body.newObject("PartDesign::Pad", "Pad007")
pad8.Profile = sketch10
pad8.setExpression("Length", "Params.pad8_length")

# Sketch on XZ plane
sketch11 = body.newObject("Sketcher::SketchObject", "Sketch010")
sketch11.AttachmentSupport = (doc.getObject("XZ_Plane"), [""])
sketch11.MapMode = "FlatFace"
sketch11.addGeometry([
    Part.LineSegment(Vector(-28.1, 33.5, 0), Vector(-28.1, 11.5, 0)),
    Part.LineSegment(Vector(-28.1, 11.5, 0), Vector(28.1, 11.5, 0)),
    Part.LineSegment(Vector(28.1, 11.5, 0), Vector(28.1, 33.5, 0)),
    Part.LineSegment(Vector(28.1, 33.5, 0), Vector(-28.1, 33.5, 0)),
], False)
sketch11.addConstraint([
    Sketcher.Constraint("Coincident", 0, 2, 1, 1),
    Sketcher.Constraint("Coincident", 1, 2, 2, 1),
    Sketcher.Constraint("Coincident", 2, 2, 3, 1),
    Sketcher.Constraint("Coincident", 3, 2, 0, 1),
    Sketcher.Constraint("Vertical", 0),
    Sketcher.Constraint("Horizontal", 1),
    Sketcher.Constraint("Vertical", 2),
    Sketcher.Constraint("Horizontal", 3),
    Sketcher.Constraint("DistanceY", 0, 2, 0, 1, 22.0),
    Sketcher.Constraint("DistanceX", 1, 1, 1, 2, 56.2),
    Sketcher.Constraint("DistanceX", 0, 2, -1, 1, 28.1),
    Sketcher.Constraint("DistanceY", -1, 1, 0, 2, 11.5),
])
sketch11.setExpression("Constraints[8]", "Params.sketch11_height")
sketch11.setExpression("Constraints[9]", "Params.sketch11_width")
pocket3 = body.newObject("PartDesign::Pocket", "Pocket002")
pocket3.Profile = sketch11
pocket3.setExpression("Length", "Params.pocket3_length")

# Sketch on XZ plane
sketch12 = body.newObject("Sketcher::SketchObject", "Sketch011")
sketch12.AttachmentSupport = (doc.getObject("XZ_Plane"), [""])
sketch12.MapMode = "FlatFace"
sketch12.AttachmentOffset = App.Placement(Vector(0, 0, 21), App.Rotation())
sketch12.addGeometry([
    Part.LineSegment(Vector(-30.1, 54.24, 0), Vector(-30.1, 39.24, 0)),
    Part.LineSegment(Vector(-30.1, 39.24, 0), Vector(-28.1, 39.24, 0)),
    Part.LineSegment(Vector(-28.1, 39.24, 0), Vector(-28.1, 54.24, 0)),
    Part.LineSegment(Vector(-28.1, 54.24, 0), Vector(-30.1, 54.24, 0)),
], False)
sketch12.addConstraint([
    Sketcher.Constraint("Coincident", 0, 2, 1, 1),
    Sketcher.Constraint("Coincident", 1, 2, 2, 1),
    Sketcher.Constraint("Coincident", 2, 2, 3, 1),
    Sketcher.Constraint("Coincident", 3, 2, 0, 1),
    Sketcher.Constraint("Vertical", 0),
    Sketcher.Constraint("Horizontal", 1),
    Sketcher.Constraint("Vertical", 2),
    Sketcher.Constraint("Horizontal", 3),
    Sketcher.Constraint("DistanceX", 1, 1, 1, 2, 2.0),
    Sketcher.Constraint("DistanceY", 0, 2, 0, 1, 15.0),
    Sketcher.Constraint("DistanceX", 0, 2, -1, 1, 30.1),
    Sketcher.Constraint("DistanceY", -1, 1, 0, 2, 39.24),
])
sketch12.setExpression("Constraints[8]", "Params.sketch12_width")
sketch12.setExpression("Constraints[9]", "Params.sketch12_height")
pad9 = body.newObject("PartDesign::Pad", "Pad008")
pad9.Profile = sketch12
pad9.setExpression("Length", "Params.pad9_length")

# Sketch on XZ plane
sketch13 = body.newObject("Sketcher::SketchObject", "Sketch012")
sketch13.AttachmentSupport = (doc.getObject("XZ_Plane"), [""])
sketch13.MapMode = "FlatFace"
sketch13.addGeometry([
    Part.LineSegment(Vector(26.1, 54.24, 0), Vector(26.1, 39.24, 0)),
    Part.LineSegment(Vector(26.1, 39.24, 0), Vector(28.1, 39.24, 0)),
    Part.LineSegment(Vector(28.1, 39.24, 0), Vector(28.1, 54.24, 0)),
    Part.LineSegment(Vector(28.1, 54.24, 0), Vector(26.1, 54.24, 0)),
], False)
sketch13.addConstraint([
    Sketcher.Constraint("Coincident", 0, 2, 1, 1),
    Sketcher.Constraint("Coincident", 1, 2, 2, 1),
    Sketcher.Constraint("Coincident", 2, 2, 3, 1),
    Sketcher.Constraint("Coincident", 3, 2, 0, 1),
    Sketcher.Constraint("Vertical", 0),
    Sketcher.Constraint("Horizontal", 1),
    Sketcher.Constraint("Vertical", 2),
    Sketcher.Constraint("Horizontal", 3),
    Sketcher.Constraint("DistanceX", 1, 1, 1, 2, 2.0),
    Sketcher.Constraint("DistanceY", 0, 2, 0, 1, 15.0),
    Sketcher.Constraint("DistanceX", -1, 1, 0, 2, 26.1),
    Sketcher.Constraint("DistanceY", -1, 1, 0, 2, 39.24),
])
sketch13.setExpression("Constraints[8]", "Params.sketch13_width")
sketch13.setExpression("Constraints[9]", "Params.sketch13_height")
pad10 = body.newObject("PartDesign::Pad", "Pad009")
pad10.Profile = sketch13
pad10.setExpression("Length", "Params.pad10_length")

# Sketch on XZ plane
sketch14 = body.newObject("Sketcher::SketchObject", "Sketch013")
sketch14.AttachmentSupport = (doc.getObject("XZ_Plane"), [""])
sketch14.MapMode = "FlatFace"
sketch14.addGeometry([
    Part.LineSegment(Vector(20.32, 43.44, 0), Vector(20.32, 39.24, 0)),  # 0
    Part.LineSegment(Vector(20.32, 39.24, 0), Vector(26.118204, 39.24, 0)),  # 1
    Part.LineSegment(Vector(26.118204, 39.24, 0), Vector(26.118204, 43.44, 0)),  # 2
    Part.LineSegment(Vector(26.118204, 43.44, 0), Vector(23.92, 41.24, 0)),  # 3
    Part.LineSegment(Vector(23.92, 41.24, 0), Vector(22.12, 41.24, 0)),  # 4
    Part.LineSegment(Vector(22.12, 41.24, 0), Vector(22.12, 43.44, 0)),  # 5
    Part.LineSegment(Vector(22.12, 43.44, 0), Vector(20.32, 43.44, 0)),  # 6
    Part.LineSegment(Vector(20.32, 54.24, 0), Vector(20.32, 50.04, 0)),  # 7
    Part.LineSegment(Vector(20.32, 50.04, 0), Vector(22.12, 50.04, 0)),  # 8
    Part.LineSegment(Vector(22.12, 50.04, 0), Vector(22.12, 52.24, 0)),  # 9
    Part.LineSegment(Vector(22.12, 52.24, 0), Vector(23.92, 52.24, 0)),  # 10
    Part.LineSegment(Vector(23.92, 52.24, 0), Vector(26.118204, 50.04, 0)),  # 11
    Part.LineSegment(Vector(26.118204, 50.04, 0), Vector(26.118204, 54.24, 0)),  # 12
    Part.LineSegment(Vector(26.118204, 54.24, 0), Vector(20.32, 54.24, 0)),  # 13
    Part.LineSegment(Vector(-22.32, 39.24, 0), Vector(-22.32, 43.44, 0)),  # 14
    Part.LineSegment(Vector(-22.32, 43.44, 0), Vector(-24.12, 43.44, 0)),  # 15
    Part.LineSegment(Vector(-24.12, 43.44, 0), Vector(-24.12, 41.24, 0)),  # 16
    Part.LineSegment(Vector(-24.12, 41.24, 0), Vector(-25.92, 41.24, 0)),  # 17
    Part.LineSegment(Vector(-25.92, 41.24, 0), Vector(-28.12, 43.438204, 0)),  # 18
    Part.LineSegment(Vector(-28.12, 43.438204, 0), Vector(-28.12, 39.24, 0)),  # 19
    Part.LineSegment(Vector(-28.12, 39.24, 0), Vector(-22.32, 39.24, 0)),  # 20
    Part.LineSegment(Vector(-22.32, 50.04, 0), Vector(-22.32, 54.24, 0)),  # 21
    Part.LineSegment(Vector(-22.32, 54.24, 0), Vector(-28.118204, 54.24, 0)),  # 22
    Part.LineSegment(Vector(-28.118204, 54.24, 0), Vector(-28.118204, 50.04, 0)),  # 23
    Part.LineSegment(Vector(-28.118204, 50.04, 0), Vector(-25.92, 52.24, 0)),  # 24
    Part.LineSegment(Vector(-25.92, 52.24, 0), Vector(-24.12, 52.24, 0)),  # 25
    Part.LineSegment(Vector(-24.12, 52.24, 0), Vector(-24.12, 50.04, 0)),  # 26
    Part.LineSegment(Vector(-24.12, 50.04, 0), Vector(-22.32, 50.04, 0)),  # 27
], False)
sketch14.addConstraint([
    Sketcher.Constraint("Coincident", 0, 2, 1, 1),
    Sketcher.Constraint("Coincident", 1, 2, 2, 1),
    Sketcher.Constraint("Coincident", 2, 2, 3, 1),
    Sketcher.Constraint("Coincident", 3, 2, 4, 1),
    Sketcher.Constraint("Coincident", 4, 2, 5, 1),
    Sketcher.Constraint("Coincident", 5, 2, 6, 1),
    Sketcher.Constraint("Coincident", 6, 2, 0, 1),
    Sketcher.Constraint("Coincident", 7, 2, 8, 1),
    Sketcher.Constraint("Coincident", 8, 2, 9, 1),
    Sketcher.Constraint("Coincident", 9, 2, 10, 1),
    Sketcher.Constraint("Coincident", 10, 2, 11, 1),
    Sketcher.Constraint("Coincident", 11, 2, 12, 1),
    Sketcher.Constraint("Coincident", 12, 2, 13, 1),
    Sketcher.Constraint("Coincident", 13, 2, 7, 1),
    Sketcher.Constraint("Coincident", 14, 2, 15, 1),
    Sketcher.Constraint("Coincident", 15, 2, 16, 1),
    Sketcher.Constraint("Coincident", 16, 2, 17, 1),
    Sketcher.Constraint("Coincident", 17, 2, 18, 1),
    Sketcher.Constraint("Coincident", 18, 2, 19, 1),
    Sketcher.Constraint("Coincident", 19, 2, 20, 1),
    Sketcher.Constraint("Coincident", 20, 2, 14, 1),
    Sketcher.Constraint("Coincident", 21, 2, 22, 1),
    Sketcher.Constraint("Coincident", 22, 2, 23, 1),
    Sketcher.Constraint("Coincident", 23, 2, 24, 1),
    Sketcher.Constraint("Coincident", 24, 2, 25, 1),
    Sketcher.Constraint("Coincident", 25, 2, 26, 1),
    Sketcher.Constraint("Coincident", 26, 2, 27, 1),
    Sketcher.Constraint("Coincident", 27, 2, 21, 1),
    Sketcher.Constraint("Vertical", 0),
    Sketcher.Constraint("Horizontal", 1),
    Sketcher.Constraint("Vertical", 2),
    Sketcher.Constraint("Horizontal", 4),
    Sketcher.Constraint("Vertical", 5),
    Sketcher.Constraint("Horizontal", 6),
    Sketcher.Constraint("Vertical", 7),
    Sketcher.Constraint("Horizontal", 8),
    Sketcher.Constraint("Vertical", 9),
    Sketcher.Constraint("Horizontal", 10),
    Sketcher.Constraint("Vertical", 12),
    Sketcher.Constraint("Horizontal", 13),
    Sketcher.Constraint("Vertical", 14),
    Sketcher.Constraint("Horizontal", 15),
    Sketcher.Constraint("Vertical", 16),
    Sketcher.Constraint("Horizontal", 17),
    Sketcher.Constraint("Vertical", 19),
    Sketcher.Constraint("Horizontal", 20),
    Sketcher.Constraint("Vertical", 21),
    Sketcher.Constraint("Horizontal", 22),
    Sketcher.Constraint("Vertical", 23),
    Sketcher.Constraint("Horizontal", 25),
    Sketcher.Constraint("Vertical", 26),
    Sketcher.Constraint("Horizontal", 27),
    Sketcher.Constraint("Perpendicular", 3, 18),
    Sketcher.Constraint("Perpendicular", 18, 24),
    Sketcher.Constraint("Horizontal", 2, 2, 5, 2),
    Sketcher.Constraint("Horizontal", 8, 2, 11, 2),
    Sketcher.Constraint("Horizontal", 6, 2, 14, 2),
    Sketcher.Constraint("Horizontal", 4, 2, 16, 2),
    Sketcher.Constraint("Horizontal", 1, 2, 19, 2),
    Sketcher.Constraint("Horizontal", 13, 2, 21, 2),
    Sketcher.Constraint("Horizontal", 11, 2, 23, 2),
    Sketcher.Constraint("Horizontal", 10, 2, 24, 2),
    Sketcher.Constraint("Horizontal", 23, 2, 26, 2),
    Sketcher.Constraint("Vertical", 6, 2, 7, 2),
    Sketcher.Constraint("Vertical", 5, 2, 8, 2),
    Sketcher.Constraint("Vertical", 3, 2, 10, 2),
    Sketcher.Constraint("Vertical", 2, 2, 11, 2),
    Sketcher.Constraint("Vertical", 20, 2, 21, 2),
    Sketcher.Constraint("Vertical", 17, 2, 24, 2),
    Sketcher.Constraint("Vertical", 16, 2, 25, 2),
    Sketcher.Constraint("Equal", 4, 6),
    Sketcher.Constraint("Equal", 10, 15),
    Sketcher.Constraint("Equal", 15, 17),
    Sketcher.Constraint("Equal", 13, 22),
    Sketcher.Constraint("Equal", 2, 7),
    Sketcher.Constraint("Equal", 11, 18),
    Sketcher.Constraint("DistanceX", 4, 2, 4, 1, 1.8),
    Sketcher.Constraint("DistanceX", 20, 1, 20, 2, 5.8),
    Sketcher.Constraint("DistanceY", 0, 2, 0, 1, 4.2),
    Sketcher.Constraint("DistanceY", 16, 2, 21, 2, 13.0),
    Sketcher.Constraint("Distance", 3, 3.11),
    Sketcher.Constraint("DistanceX", -1, 1, 0, 2, 20.32),
    Sketcher.Constraint("DistanceY", -1, 1, 0, 2, 39.24),
    Sketcher.Constraint("DistanceX", 14, 2, -1, 1, 22.32),
])
sketch14.setExpression("Constraints[76]", "Params.sketch14_width")
sketch14.setExpression("Constraints[77]", "Params.sketch14_width2")
sketch14.setExpression("Constraints[78]", "Params.sketch14_height")
sketch14.setExpression("Constraints[80]", "Params.sketch14_length")
pad11 = body.newObject("PartDesign::Pad", "Pad010")
pad11.Profile = sketch14
pad11.setExpression("Length", "Params.pad11_length")

doc.recompute()
